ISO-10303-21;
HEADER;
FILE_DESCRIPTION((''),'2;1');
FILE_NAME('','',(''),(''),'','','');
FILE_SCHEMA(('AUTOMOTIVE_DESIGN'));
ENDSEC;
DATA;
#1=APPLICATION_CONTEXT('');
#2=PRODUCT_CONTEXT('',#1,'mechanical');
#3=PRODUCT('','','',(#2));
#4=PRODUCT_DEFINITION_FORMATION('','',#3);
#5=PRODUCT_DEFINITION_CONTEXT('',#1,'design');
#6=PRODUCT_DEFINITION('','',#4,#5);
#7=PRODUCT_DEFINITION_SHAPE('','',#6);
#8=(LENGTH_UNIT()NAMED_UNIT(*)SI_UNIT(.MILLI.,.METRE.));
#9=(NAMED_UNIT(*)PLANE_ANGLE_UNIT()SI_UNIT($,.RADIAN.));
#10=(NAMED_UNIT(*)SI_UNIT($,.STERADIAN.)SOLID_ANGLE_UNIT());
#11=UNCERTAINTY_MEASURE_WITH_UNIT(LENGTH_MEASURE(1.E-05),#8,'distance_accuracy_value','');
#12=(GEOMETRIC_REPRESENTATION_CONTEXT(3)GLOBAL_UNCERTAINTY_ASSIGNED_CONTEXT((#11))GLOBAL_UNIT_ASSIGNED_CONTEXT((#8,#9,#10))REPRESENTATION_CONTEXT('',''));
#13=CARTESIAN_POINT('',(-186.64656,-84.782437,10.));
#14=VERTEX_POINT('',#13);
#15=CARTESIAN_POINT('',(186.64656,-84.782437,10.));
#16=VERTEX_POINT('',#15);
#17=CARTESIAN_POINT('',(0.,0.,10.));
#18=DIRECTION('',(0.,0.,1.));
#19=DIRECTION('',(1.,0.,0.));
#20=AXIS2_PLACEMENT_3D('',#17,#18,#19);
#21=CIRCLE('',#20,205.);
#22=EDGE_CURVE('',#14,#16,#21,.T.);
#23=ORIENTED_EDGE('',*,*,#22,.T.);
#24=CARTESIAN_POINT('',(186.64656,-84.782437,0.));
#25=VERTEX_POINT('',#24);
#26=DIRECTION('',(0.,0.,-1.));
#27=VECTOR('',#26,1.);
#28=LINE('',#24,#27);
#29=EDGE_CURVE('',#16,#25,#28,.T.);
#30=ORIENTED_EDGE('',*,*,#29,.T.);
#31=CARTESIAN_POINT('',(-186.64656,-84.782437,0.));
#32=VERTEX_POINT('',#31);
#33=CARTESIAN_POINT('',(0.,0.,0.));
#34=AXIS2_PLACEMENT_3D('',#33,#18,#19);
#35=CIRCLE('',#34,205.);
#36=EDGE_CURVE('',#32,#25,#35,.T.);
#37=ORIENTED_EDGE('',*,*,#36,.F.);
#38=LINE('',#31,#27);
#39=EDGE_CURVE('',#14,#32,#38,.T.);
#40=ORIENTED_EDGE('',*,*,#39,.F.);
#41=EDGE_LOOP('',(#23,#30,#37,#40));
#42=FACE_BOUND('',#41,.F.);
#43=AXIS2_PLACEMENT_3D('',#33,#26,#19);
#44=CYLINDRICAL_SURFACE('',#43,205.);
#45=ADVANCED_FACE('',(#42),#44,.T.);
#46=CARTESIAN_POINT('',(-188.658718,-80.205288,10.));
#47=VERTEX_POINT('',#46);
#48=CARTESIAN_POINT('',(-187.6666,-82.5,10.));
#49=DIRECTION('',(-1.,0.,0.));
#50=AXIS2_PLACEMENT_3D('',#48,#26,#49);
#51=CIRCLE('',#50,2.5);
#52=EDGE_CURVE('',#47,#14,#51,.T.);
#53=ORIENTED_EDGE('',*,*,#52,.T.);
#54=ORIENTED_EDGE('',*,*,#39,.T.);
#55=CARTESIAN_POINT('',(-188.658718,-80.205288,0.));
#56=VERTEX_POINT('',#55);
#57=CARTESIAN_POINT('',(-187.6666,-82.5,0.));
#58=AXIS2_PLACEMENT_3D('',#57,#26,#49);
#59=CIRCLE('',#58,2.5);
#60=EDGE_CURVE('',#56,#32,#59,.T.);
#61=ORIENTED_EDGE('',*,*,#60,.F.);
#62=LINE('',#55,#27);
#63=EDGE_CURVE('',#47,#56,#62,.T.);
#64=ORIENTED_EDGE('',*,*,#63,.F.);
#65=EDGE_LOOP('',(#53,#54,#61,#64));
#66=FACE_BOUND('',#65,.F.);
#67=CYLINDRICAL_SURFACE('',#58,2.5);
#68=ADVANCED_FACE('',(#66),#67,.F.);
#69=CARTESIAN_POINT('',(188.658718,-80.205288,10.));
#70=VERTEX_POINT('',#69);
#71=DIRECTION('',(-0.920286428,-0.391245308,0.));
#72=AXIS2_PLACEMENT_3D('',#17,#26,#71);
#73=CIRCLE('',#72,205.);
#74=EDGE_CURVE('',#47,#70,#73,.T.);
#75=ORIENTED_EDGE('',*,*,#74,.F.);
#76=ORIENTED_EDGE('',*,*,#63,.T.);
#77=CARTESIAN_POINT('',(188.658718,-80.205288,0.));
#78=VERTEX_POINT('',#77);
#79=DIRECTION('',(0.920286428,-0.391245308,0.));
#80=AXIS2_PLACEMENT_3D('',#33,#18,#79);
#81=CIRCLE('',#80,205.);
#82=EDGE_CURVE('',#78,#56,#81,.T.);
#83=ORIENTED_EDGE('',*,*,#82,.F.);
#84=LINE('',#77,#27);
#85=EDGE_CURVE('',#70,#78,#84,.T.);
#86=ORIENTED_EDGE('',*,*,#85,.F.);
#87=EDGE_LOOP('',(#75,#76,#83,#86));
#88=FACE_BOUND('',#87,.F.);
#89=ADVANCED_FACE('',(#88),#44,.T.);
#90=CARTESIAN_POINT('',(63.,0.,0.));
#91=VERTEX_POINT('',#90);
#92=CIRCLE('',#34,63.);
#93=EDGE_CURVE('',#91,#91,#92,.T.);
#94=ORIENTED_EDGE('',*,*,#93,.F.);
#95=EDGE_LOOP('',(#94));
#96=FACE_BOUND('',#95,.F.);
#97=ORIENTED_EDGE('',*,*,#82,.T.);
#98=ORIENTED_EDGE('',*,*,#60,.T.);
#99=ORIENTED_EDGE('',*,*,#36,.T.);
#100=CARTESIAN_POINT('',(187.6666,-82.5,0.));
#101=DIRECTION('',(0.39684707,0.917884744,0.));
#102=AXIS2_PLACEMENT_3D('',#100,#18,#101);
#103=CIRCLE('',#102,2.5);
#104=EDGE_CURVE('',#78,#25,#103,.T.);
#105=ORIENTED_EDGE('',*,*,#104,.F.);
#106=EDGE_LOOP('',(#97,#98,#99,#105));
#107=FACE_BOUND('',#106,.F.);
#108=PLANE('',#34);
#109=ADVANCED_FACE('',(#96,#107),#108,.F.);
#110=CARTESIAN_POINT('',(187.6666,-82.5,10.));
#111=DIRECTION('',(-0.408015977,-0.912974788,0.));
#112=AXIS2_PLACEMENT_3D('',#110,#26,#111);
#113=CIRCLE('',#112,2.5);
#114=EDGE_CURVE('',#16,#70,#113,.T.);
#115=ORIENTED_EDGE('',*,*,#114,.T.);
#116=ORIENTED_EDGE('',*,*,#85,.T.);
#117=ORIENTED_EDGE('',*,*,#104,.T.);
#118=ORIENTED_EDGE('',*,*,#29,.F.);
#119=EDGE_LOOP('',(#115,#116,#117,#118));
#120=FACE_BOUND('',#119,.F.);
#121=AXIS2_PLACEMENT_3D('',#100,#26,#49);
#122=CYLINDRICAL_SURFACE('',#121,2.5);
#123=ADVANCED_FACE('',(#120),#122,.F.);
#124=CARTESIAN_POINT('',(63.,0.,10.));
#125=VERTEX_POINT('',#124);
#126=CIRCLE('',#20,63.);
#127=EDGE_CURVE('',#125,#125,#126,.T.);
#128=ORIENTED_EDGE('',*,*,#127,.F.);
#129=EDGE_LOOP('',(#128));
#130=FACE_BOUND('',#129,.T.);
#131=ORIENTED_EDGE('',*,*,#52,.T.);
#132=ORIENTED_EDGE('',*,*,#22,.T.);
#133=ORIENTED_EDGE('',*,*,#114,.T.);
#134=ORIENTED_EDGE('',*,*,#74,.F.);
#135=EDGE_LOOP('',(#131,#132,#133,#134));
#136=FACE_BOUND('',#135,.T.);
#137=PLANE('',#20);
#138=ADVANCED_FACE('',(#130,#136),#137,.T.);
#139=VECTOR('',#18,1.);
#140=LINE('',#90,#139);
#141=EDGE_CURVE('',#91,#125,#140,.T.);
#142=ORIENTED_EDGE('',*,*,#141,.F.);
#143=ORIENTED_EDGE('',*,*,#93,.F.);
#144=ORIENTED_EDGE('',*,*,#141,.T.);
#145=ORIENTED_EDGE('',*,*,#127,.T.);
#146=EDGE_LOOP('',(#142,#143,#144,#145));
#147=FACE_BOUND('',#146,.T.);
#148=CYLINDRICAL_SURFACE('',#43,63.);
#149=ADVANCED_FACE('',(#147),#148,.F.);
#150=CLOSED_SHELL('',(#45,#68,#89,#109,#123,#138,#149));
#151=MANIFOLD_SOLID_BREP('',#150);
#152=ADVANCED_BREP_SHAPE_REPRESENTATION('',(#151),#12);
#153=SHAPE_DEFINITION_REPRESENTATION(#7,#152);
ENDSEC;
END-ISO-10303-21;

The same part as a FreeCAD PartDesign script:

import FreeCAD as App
import Part
import Sketcher

V = App.Vector

doc = App.newDocument("Part")
params = doc.addObject("Spreadsheet::Sheet", "Params")
for row, (alias, value) in enumerate([
    ("sketch1_diameter", "126 mm"),
    ("sketch1_diameter2", "410 mm"),
    ("pad1_length", "10 mm"),
    ("sketch2_diameter", "5 mm"),
], start=1):
    params.set(f"A{row}", alias)
    params.set(f"B{row}", "=" + value)
    params.setAlias(f"B{row}", alias)

body = doc.addObject("PartDesign::Body", "Body")

# Sketch on XY plane
sketch1 = body.newObject("Sketcher::SketchObject", "Sketch")
sketch1.AttachmentSupport = (doc.getObject("XY_Plane"), [""])
sketch1.MapMode = "FlatFace"
sketch1.addGeometry(Part.Circle(V(0, 0, 0), V(0, 0, 1), 205), False)
sketch1.addGeometry(Part.Circle(V(0, 0, 0), V(0, 0, 1), 63), False)
sketch1.addConstraint(Sketcher.Constraint("Coincident", 0, 3, -1, 1))
sketch1.addConstraint(Sketcher.Constraint("Coincident", 1, 3, -1, 1))
sketch1.addConstraint(Sketcher.Constraint("Diameter", 1, 126.0))
sketch1.addConstraint(Sketcher.Constraint("Diameter", 0, 410.0))
sketch1.setExpression("Constraints[2]", "Params.sketch1_diameter")
sketch1.setExpression("Constraints[3]", "Params.sketch1_diameter2")
pad1 = body.newObject("PartDesign::Pad", "Pad")
pad1.Profile = sketch1
pad1.setExpression("Length", "Params.pad1_length")

# Sketch on XY plane
sketch2 = body.newObject("Sketcher::SketchObject", "Sketch001")
sketch2.AttachmentSupport = (doc.getObject("XY_Plane"), [""])
sketch2.MapMode = "FlatFace"
sketch2.addGeometry(Part.Circle(V(187.6666, -82.5, 0), V(0, 0, 1), 2.5), False)
sketch2.addGeometry(Part.Circle(V(-187.6666, -82.5, 0), V(0, 0, 1), 2.5), False)
sketch2.addConstraint(Sketcher.Constraint("Equal", 0, 1))
sketch2.addConstraint(Sketcher.Constraint("Symmetric", 0, 3, 1, 3, -2))
sketch2.addConstraint(Sketcher.Constraint("Diameter", 0, 5.0))
sketch2.addConstraint(Sketcher.Constraint("DistanceY", 0, 3, -1, 1, 82.5))
sketch2.addConstraint(Sketcher.Constraint("DistanceX", -1, 1, 0, 3, 187.6666))
sketch2.setExpression("Constraints[2]", "Params.sketch2_diameter")
pocket1 = body.newObject("PartDesign::Pocket", "Pocket")
pocket1.Profile = sketch2
pocket1.Type = "ThroughAll"
pocket1.Reversed = True

doc.recompute()
